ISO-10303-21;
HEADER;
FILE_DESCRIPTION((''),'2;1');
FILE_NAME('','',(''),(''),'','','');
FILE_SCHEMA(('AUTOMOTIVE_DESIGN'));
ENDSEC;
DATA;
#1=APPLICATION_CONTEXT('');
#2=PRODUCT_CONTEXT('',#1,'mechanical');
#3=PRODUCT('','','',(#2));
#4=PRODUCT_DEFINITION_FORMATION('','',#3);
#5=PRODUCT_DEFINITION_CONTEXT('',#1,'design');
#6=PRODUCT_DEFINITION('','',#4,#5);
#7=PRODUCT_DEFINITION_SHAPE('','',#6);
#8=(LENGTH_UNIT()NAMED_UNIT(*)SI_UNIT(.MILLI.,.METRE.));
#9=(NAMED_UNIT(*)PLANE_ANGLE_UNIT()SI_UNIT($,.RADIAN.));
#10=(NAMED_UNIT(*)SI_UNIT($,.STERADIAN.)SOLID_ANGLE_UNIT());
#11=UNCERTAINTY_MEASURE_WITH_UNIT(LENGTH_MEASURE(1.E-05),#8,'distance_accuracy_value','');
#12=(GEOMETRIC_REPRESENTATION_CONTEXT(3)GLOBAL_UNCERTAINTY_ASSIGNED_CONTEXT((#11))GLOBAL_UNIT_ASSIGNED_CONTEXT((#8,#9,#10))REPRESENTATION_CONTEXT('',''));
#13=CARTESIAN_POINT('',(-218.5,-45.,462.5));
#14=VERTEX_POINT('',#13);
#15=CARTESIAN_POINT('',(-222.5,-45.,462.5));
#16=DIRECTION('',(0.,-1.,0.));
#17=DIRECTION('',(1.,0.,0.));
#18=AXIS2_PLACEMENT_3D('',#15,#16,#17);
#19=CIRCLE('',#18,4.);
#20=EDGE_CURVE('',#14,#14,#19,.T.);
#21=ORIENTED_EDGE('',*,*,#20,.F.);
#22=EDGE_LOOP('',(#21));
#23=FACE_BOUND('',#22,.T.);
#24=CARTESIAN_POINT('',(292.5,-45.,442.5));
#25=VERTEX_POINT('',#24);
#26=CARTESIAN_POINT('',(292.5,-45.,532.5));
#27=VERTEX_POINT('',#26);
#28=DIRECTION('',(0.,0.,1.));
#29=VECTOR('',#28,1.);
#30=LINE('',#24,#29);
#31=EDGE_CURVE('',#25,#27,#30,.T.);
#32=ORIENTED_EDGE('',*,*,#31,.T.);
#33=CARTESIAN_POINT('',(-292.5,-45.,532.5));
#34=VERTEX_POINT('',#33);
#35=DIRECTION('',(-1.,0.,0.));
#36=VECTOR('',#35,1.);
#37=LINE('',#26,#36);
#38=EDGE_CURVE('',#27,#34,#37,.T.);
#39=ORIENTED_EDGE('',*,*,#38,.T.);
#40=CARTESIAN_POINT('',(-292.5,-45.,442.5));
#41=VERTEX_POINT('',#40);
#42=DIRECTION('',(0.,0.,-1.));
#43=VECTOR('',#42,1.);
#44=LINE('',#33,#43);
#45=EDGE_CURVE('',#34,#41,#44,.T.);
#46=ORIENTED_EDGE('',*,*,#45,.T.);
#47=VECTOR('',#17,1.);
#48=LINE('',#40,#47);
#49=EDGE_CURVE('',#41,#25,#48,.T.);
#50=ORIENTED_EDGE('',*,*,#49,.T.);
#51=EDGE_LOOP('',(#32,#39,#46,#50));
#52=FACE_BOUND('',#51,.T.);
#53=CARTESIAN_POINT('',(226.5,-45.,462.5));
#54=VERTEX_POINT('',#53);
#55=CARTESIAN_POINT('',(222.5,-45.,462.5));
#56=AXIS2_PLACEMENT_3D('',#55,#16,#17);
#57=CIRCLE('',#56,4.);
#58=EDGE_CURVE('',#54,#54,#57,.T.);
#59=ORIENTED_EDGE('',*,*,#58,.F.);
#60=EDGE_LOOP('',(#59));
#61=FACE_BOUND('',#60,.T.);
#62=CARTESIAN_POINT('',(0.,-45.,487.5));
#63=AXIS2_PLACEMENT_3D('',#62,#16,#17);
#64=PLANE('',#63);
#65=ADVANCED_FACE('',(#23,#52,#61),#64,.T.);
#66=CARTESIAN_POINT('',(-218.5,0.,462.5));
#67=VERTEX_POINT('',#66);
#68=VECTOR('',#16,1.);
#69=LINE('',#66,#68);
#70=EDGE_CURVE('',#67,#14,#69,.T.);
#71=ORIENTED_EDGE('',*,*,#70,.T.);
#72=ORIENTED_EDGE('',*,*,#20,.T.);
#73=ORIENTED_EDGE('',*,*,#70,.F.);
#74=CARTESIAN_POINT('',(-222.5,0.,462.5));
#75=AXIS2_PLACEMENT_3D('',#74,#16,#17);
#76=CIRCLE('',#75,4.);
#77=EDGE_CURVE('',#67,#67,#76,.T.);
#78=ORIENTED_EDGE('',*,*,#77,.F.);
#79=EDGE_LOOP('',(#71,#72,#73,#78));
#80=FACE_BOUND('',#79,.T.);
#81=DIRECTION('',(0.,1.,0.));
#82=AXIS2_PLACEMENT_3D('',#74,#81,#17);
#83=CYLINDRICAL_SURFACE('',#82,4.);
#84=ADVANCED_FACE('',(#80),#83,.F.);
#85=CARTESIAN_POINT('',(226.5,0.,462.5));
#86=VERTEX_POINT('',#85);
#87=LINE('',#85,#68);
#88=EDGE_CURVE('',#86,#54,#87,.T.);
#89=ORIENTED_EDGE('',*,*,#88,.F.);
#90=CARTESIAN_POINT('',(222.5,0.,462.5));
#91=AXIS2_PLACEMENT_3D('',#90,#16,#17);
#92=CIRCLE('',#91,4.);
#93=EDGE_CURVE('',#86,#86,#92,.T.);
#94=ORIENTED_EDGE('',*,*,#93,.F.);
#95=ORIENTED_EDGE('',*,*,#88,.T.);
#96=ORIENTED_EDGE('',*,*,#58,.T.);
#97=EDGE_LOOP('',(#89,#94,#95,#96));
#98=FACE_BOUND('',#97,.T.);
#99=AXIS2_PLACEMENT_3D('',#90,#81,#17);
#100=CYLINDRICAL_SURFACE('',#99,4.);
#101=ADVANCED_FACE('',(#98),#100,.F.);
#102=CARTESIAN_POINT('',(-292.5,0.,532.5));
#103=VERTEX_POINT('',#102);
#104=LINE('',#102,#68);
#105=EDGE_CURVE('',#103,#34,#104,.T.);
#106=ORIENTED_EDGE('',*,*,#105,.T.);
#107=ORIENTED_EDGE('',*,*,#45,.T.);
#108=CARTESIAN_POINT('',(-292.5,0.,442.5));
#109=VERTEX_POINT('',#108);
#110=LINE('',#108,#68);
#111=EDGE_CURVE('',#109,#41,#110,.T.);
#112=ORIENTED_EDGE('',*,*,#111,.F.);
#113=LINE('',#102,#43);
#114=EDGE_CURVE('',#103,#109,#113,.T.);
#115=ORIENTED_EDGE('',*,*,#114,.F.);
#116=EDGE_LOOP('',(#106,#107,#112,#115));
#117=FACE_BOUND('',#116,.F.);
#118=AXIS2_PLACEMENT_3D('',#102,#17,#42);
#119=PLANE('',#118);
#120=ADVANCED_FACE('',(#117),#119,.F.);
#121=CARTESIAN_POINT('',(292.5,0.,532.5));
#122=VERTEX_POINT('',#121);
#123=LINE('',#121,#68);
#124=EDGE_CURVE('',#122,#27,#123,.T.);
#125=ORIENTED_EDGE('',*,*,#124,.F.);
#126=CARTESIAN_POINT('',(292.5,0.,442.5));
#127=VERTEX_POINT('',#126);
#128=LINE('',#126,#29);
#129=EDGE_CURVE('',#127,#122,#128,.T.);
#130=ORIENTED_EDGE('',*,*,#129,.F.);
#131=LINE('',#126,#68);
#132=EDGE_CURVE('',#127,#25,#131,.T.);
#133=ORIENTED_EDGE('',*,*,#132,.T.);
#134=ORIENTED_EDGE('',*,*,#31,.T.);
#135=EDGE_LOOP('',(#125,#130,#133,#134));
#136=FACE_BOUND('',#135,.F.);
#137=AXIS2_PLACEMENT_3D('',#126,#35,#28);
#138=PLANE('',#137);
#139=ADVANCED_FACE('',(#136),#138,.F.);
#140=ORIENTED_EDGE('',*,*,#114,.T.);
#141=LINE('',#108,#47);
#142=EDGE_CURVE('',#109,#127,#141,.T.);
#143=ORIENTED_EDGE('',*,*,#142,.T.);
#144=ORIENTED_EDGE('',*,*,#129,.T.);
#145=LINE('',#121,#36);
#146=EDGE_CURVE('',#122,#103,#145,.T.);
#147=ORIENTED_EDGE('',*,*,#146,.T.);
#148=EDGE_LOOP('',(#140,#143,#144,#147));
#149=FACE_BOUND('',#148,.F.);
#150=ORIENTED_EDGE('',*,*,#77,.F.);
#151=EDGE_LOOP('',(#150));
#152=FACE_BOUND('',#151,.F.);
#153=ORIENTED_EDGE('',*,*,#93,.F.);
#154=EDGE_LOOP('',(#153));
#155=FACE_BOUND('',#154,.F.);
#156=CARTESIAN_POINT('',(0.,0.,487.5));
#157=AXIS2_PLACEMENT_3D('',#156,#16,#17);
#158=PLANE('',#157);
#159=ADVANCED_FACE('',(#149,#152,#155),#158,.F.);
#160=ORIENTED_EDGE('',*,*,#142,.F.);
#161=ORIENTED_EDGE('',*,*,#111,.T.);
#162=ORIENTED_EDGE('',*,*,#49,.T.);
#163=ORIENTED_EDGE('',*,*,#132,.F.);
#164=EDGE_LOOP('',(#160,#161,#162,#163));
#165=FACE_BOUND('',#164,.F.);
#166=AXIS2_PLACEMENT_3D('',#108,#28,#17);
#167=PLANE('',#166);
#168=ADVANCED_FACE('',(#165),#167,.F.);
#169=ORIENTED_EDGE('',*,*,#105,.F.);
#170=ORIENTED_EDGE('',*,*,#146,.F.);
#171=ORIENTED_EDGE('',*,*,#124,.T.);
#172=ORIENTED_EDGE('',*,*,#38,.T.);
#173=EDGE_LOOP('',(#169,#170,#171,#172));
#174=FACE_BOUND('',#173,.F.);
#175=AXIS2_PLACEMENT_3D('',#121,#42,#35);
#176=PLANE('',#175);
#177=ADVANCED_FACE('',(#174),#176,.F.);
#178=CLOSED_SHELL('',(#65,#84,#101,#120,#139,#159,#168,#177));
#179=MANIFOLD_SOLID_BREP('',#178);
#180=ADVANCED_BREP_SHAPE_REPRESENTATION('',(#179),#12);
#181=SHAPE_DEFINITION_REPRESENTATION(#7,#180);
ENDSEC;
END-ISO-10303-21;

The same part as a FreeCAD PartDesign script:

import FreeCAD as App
import Part
import Sketcher
Q = App.Units.Quantity

doc = App.newDocument("Part")
body = doc.addObject("PartDesign::Body", "Body")

sketch1 = body.newObject("Sketcher::SketchObject", "Sketch")
sketch1.AttachmentSupport = (doc.getObject("XZ_Plane"), [""])
sketch1.MapMode = "FlatFace"
sketch1.addGeometry([
    Part.LineSegment(App.Vector(-292.5, 532.5, 0), App.Vector(-292.5, 442.5, 0)),
    Part.LineSegment(App.Vector(-292.5, 442.5, 0), App.Vector(292.5, 442.5, 0)),
    Part.LineSegment(App.Vector(292.5, 442.5, 0), App.Vector(292.5, 532.5, 0)),
    Part.LineSegment(App.Vector(292.5, 532.5, 0), App.Vector(-292.5, 532.5, 0)),
    Part.Circle(App.Vector(-222.5, 462.5, 0), App.Vector(0, 0, 1), 4),
    Part.Circle(App.Vector(222.5, 462.5, 0), App.Vector(0, 0, 1), 4),
], False)
sketch1.addConstraint([
    Sketcher.Constraint("Coincident", 0, 2, 1, 1),
    Sketcher.Constraint("Coincident", 1, 2, 2, 1),
    Sketcher.Constraint("Coincident", 2, 2, 3, 1),
    Sketcher.Constraint("Coincident", 3, 2, 0, 1),
    Sketcher.Constraint("Vertical", 0),
    Sketcher.Constraint("Horizontal", 1),
    Sketcher.Constraint("Vertical", 2),
    Sketcher.Constraint("Horizontal", 3),
    Sketcher.Constraint("Equal", 4, 5),
    Sketcher.Constraint("Symmetric", 4, 3, 5, 3, -2),
    Sketcher.Constraint("Diameter", 4, Q("8 mm")),
    Sketcher.Constraint("DistanceX", 1, 1, 1, 2, Q("585 mm")),
    Sketcher.Constraint("DistanceY", 0, 2, 0, 1, Q("90 mm")),
    Sketcher.Constraint("DistanceX", 4, 3, 5, 3, Q("445 mm")),
    Sketcher.Constraint("DistanceX", 0, 2, 4, 3, Q("70 mm")),
    Sketcher.Constraint("DistanceY", 0, 2, 4, 3, Q("20 mm")),
    Sketcher.Constraint("DistanceY", -1, 1, 4, 3, Q("462.5 mm")),
])
pad1 = body.newObject("PartDesign::Pad", "Pad")
pad1.Profile = sketch1
pad1.Length = 45

doc.recompute()
